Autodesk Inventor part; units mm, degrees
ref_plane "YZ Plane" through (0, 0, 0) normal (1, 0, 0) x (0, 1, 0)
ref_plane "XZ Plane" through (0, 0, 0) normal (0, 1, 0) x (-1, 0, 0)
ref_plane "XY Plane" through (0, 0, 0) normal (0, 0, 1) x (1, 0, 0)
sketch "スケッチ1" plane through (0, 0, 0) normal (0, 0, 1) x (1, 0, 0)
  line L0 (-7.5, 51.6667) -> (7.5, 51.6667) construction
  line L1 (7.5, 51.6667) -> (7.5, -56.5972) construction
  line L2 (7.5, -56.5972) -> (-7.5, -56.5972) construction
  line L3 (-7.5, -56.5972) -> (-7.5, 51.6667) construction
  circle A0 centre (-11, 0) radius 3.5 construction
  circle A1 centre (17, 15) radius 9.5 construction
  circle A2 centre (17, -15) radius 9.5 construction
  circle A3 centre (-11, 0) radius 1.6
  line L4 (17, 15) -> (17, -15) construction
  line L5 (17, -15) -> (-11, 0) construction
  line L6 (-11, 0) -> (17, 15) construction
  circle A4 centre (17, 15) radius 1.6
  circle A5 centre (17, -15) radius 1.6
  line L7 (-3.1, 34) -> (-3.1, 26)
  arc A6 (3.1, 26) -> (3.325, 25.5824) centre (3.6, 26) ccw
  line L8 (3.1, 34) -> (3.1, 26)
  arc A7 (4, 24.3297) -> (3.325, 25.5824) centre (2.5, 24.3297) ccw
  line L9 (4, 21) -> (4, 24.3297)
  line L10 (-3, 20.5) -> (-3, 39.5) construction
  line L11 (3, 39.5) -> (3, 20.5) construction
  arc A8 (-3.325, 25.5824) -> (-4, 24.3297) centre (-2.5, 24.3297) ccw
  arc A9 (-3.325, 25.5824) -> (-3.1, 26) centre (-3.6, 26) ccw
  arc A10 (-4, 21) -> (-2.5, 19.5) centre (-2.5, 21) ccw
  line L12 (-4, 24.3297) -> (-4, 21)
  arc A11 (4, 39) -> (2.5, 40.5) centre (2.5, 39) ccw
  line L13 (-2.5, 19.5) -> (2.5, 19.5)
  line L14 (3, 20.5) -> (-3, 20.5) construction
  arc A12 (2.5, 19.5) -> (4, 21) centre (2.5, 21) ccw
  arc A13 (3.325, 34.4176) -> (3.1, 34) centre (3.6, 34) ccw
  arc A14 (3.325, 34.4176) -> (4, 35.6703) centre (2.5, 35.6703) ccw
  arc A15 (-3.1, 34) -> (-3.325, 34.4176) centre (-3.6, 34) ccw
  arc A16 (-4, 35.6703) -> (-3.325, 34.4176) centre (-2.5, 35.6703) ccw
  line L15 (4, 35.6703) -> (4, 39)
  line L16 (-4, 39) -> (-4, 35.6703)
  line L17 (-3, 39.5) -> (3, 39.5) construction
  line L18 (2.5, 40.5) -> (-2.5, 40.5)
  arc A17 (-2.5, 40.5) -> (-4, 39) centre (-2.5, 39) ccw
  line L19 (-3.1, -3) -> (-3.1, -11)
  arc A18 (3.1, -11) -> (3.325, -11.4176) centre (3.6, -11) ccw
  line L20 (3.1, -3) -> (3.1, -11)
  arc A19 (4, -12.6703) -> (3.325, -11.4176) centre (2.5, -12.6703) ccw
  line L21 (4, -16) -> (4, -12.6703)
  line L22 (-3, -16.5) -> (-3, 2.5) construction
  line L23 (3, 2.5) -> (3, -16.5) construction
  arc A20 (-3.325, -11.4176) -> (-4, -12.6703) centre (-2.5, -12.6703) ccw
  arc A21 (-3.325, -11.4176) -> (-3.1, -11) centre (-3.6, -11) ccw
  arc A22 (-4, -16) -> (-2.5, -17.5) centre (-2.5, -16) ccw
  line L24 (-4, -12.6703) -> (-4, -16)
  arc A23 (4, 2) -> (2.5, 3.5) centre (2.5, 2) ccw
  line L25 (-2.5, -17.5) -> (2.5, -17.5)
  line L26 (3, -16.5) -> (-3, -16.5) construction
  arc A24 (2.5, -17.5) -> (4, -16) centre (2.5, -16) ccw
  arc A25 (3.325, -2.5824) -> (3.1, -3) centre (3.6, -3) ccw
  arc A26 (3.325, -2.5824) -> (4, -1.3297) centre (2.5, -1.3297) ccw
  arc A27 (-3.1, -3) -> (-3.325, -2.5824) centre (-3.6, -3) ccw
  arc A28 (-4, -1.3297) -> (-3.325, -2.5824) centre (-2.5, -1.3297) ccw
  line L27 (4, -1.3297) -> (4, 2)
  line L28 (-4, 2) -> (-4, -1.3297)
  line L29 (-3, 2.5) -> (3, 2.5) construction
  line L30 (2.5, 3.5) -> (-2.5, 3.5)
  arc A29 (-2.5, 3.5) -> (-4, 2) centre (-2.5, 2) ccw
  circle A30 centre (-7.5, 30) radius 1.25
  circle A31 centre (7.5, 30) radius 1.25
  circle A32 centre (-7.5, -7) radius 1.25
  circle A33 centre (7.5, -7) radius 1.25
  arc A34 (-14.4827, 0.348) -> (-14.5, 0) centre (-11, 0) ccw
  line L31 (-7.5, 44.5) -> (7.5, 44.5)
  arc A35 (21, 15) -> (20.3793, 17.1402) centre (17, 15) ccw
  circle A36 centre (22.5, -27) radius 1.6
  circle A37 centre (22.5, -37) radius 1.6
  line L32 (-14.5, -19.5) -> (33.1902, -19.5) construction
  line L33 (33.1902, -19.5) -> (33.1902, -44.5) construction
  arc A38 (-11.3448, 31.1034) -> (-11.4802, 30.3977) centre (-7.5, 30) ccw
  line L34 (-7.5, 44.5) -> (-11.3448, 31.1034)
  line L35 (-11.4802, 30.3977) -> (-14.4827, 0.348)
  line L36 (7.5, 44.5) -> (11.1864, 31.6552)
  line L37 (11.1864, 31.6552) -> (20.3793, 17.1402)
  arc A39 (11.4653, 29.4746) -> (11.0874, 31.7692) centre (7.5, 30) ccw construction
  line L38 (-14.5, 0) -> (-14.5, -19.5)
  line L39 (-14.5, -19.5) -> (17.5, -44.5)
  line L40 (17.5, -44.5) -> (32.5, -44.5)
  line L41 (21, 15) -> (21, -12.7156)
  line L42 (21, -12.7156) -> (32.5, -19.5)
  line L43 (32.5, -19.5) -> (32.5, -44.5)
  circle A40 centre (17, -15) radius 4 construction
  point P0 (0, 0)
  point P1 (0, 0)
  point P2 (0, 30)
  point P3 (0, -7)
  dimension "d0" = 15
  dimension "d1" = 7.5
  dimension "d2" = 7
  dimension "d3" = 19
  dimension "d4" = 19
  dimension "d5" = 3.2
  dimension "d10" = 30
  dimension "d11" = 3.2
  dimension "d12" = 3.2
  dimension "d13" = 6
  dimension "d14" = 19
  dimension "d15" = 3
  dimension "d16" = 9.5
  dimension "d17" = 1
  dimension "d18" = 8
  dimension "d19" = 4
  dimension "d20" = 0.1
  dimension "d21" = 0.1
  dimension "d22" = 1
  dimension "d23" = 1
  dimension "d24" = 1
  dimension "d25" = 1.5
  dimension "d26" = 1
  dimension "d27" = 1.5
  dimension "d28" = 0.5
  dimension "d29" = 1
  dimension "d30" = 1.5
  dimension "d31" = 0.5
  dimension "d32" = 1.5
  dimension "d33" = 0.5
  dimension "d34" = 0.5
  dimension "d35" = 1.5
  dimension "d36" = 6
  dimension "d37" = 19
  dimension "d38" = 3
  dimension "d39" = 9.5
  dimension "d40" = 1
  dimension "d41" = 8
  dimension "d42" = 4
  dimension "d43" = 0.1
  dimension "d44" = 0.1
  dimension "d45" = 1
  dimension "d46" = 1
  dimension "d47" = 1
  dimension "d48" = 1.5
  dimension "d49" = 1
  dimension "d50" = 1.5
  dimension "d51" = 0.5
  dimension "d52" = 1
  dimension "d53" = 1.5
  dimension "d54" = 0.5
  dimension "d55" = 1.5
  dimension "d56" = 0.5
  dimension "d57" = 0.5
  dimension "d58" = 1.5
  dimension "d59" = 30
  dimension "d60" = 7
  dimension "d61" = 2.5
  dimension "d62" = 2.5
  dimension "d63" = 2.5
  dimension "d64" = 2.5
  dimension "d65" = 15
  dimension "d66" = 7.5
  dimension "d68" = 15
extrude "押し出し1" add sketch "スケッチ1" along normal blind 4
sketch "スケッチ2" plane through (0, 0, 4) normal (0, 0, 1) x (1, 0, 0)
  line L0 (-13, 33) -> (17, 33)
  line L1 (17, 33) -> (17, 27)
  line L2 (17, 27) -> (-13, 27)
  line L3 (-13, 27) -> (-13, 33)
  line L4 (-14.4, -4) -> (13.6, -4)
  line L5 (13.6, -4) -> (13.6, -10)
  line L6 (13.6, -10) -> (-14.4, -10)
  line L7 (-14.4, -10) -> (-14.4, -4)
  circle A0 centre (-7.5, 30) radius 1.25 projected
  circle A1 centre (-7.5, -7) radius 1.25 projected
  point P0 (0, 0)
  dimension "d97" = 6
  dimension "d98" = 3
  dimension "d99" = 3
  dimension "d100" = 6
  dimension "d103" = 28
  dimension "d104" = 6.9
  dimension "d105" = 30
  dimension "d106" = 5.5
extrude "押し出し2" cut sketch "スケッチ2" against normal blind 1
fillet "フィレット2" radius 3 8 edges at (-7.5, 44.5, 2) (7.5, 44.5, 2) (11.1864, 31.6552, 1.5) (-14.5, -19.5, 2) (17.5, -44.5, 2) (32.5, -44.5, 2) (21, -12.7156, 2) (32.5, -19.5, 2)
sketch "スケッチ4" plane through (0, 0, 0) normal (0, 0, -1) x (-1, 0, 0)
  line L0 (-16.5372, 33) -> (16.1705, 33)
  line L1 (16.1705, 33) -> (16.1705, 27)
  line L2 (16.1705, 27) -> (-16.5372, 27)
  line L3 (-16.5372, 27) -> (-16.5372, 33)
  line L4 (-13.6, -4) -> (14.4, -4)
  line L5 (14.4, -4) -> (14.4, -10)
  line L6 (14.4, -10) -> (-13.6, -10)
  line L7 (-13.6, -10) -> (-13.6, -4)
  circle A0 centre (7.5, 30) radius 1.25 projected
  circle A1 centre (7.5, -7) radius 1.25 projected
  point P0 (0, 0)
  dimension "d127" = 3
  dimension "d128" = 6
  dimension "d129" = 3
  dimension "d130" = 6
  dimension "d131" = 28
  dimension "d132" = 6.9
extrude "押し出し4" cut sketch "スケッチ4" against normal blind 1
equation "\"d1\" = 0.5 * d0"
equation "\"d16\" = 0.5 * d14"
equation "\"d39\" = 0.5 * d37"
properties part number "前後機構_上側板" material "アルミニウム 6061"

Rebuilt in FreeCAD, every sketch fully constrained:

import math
import FreeCAD as App
import Part
import Sketcher

V = App.Vector
Q = App.Units.Quantity


def edges_at(feature, points):
    """Names of the edges that pass closest to the given points."""
    edges = feature.Shape.Edges
    near = lambda p: min(range(len(edges)), key=lambda i: edges[i].distToShape(Part.Vertex(*p))[0])
    return sorted({f"Edge{near(p) + 1}" for p in points})


def add_polygon(sketch, points):
    """Adds a closed chain of lines whose ends are joined by coincident constraints."""
    first, n = sketch.GeometryCount, len(points)
    for a, b in zip(points, points[1:] + points[:1]):
        sketch.addGeometry(Part.LineSegment(App.Vector(*a, 0), App.Vector(*b, 0)), False)
    for i in range(n):
        sketch.addConstraint(Sketcher.Constraint("Coincident", first + i, 2, first + (i + 1) % n, 1))

doc = App.newDocument("Part")
body = doc.addObject("PartDesign::Body", "Body")

# Sketch on XY plane
sketch1 = body.newObject("Sketcher::SketchObject", "Sketch")
sketch1.AttachmentSupport = (doc.getObject("XY_Plane"), [""])
sketch1.MapMode = "FlatFace"
sketch1.addGeometry(Part.LineSegment(V(-11.4802, 30.3977, 0), V(-14.4827, 0.348, 0)), False)
sketch1.addGeometry(Part.ArcOfCircle(Part.Circle(V(-11.017347, 0.001298, 0), V(0, 0, 1), 3.482653), math.radians(174.28668), math.radians(180.021356)), False)
sketch1.addGeometry(Part.LineSegment(V(-14.5, 0, 0), V(-14.5, -19.5, 0)), False)
sketch1.addGeometry(Part.LineSegment(V(-14.5, -19.5, 0), V(17.5, -44.5, 0)), False)
sketch1.addGeometry(Part.LineSegment(V(17.5, -44.5, 0), V(32.5, -44.5, 0)), False)
sketch1.addGeometry(Part.LineSegment(V(32.5, -44.5, 0), V(32.5, -19.5, 0)), False)
sketch1.addGeometry(Part.LineSegment(V(32.5, -19.5, 0), V(21, -12.7156, 0)), False)
sketch1.addGeometry(Part.LineSegment(V(21, -12.7156, 0), V(21, 15, 0)), False)
sketch1.addGeometry(Part.ArcOfCircle(Part.Circle(V(17, 15, 0), V(0, 0, 1), 4), math.radians(0), math.radians(32.347161)), False)
sketch1.addGeometry(Part.LineSegment(V(20.3793, 17.1402, 0), V(11.1864, 31.6552, 0)), False)
sketch1.addGeometry(Part.LineSegment(V(11.1864, 31.6552, 0), V(7.5, 44.5, 0)), False)
sketch1.addGeometry(Part.LineSegment(V(7.5, 44.5, 0), V(-7.5, 44.5, 0)), False)
sketch1.addGeometry(Part.LineSegment(V(-7.5, 44.5, 0), V(-11.3448, 31.1034, 0)), False)
sketch1.addGeometry(Part.ArcOfCircle(Part.Circle(V(-7.497308, 29.999357, 0), V(0, 0, 1), 4.002763), math.radians(163.989095), math.radians(174.288638)), False)
sketch1.addGeometry(Part.Circle(V(-7.5, -7, 0), V(0, 0, 1), 1.25), False)
sketch1.addGeometry(Part.LineSegment(V(-3.1, -11, 0), V(-3.1, -3, 0)), False)
sketch1.addGeometry(Part.ArcOfCircle(Part.Circle(V(-3.6, -3, 0), V(0, 0, 1), 0.5), math.radians(0), math.radians(56.634101)), False)
sketch1.addGeometry(Part.ArcOfCircle(Part.Circle(V(-2.5, -1.3297, 0), V(0, 0, 1), 1.5), math.radians(180), math.radians(236.632)), False)
sketch1.addGeometry(Part.LineSegment(V(-4, -1.3297, 0), V(-4, 2, 0)), False)
sketch1.addGeometry(Part.ArcOfCircle(Part.Circle(V(-2.5, 2, 0), V(0, 0, 1), 1.5), math.radians(90), math.radians(180)), False)
sketch1.addGeometry(Part.LineSegment(V(-2.5, 3.5, 0), V(2.5, 3.5, 0)), False)
sketch1.addGeometry(Part.ArcOfCircle(Part.Circle(V(2.5, 2, 0), V(0, 0, 1), 1.5), math.radians(0), math.radians(90)), False)
sketch1.addGeometry(Part.LineSegment(V(4, 2, 0), V(4, -1.3297, 0)), False)
sketch1.addGeometry(Part.ArcOfCircle(Part.Circle(V(2.5, -1.3297, 0), V(0, 0, 1), 1.499961), math.radians(-56.632), math.radians(0)), False)
sketch1.addGeometry(Part.ArcOfCircle(Part.Circle(V(3.6, -3, 0), V(0, 0, 1), 0.500015), math.radians(123.365899), math.radians(180)), False)
sketch1.addGeometry(Part.LineSegment(V(3.1, -3, 0), V(3.1, -11, 0)), False)
sketch1.addGeometry(Part.ArcOfCircle(Part.Circle(V(3.6, -11, 0), V(0, 0, 1), 0.5), math.radians(180), math.radians(236.634101)), False)
sketch1.addGeometry(Part.ArcOfCircle(Part.Circle(V(2.5, -12.6703, 0), V(0, 0, 1), 1.5), math.radians(0), math.radians(56.632)), False)
sketch1.addGeometry(Part.LineSegment(V(4, -12.6703, 0), V(4, -16, 0)), False)
sketch1.addGeometry(Part.ArcOfCircle(Part.Circle(V(2.5, -16, 0), V(0, 0, 1), 1.5), math.radians(-90), math.radians(0)), False)
sketch1.addGeometry(Part.LineSegment(V(2.5, -17.5, 0), V(-2.5, -17.5, 0)), False)
sketch1.addGeometry(Part.ArcOfCircle(Part.Circle(V(-2.5, -16, 0), V(0, 0, 1), 1.5), math.radians(180), math.radians(270)), False)
sketch1.addGeometry(Part.LineSegment(V(-4, -16, 0), V(-4, -12.6703, 0)), False)
sketch1.addGeometry(Part.ArcOfCircle(Part.Circle(V(-2.5, -12.6703, 0), V(0, 0, 1), 1.499961), math.radians(123.368), math.radians(180)), False)
sketch1.addGeometry(Part.ArcOfCircle(Part.Circle(V(-3.6, -11, 0), V(0, 0, 1), 0.500015), math.radians(-56.634101), math.radians(0)), False)
sketch1.addGeometry(Part.Circle(V(7.5, -7, 0), V(0, 0, 1), 1.25), False)
sketch1.addGeometry(Part.Circle(V(22.5, -37, 0), V(0, 0, 1), 1.6), False)
sketch1.addGeometry(Part.Circle(V(22.5, -27, 0), V(0, 0, 1), 1.6), False)
sketch1.addGeometry(Part.Circle(V(17, -15, 0), V(0, 0, 1), 1.6), False)
sketch1.addGeometry(Part.Circle(V(-11, 0, 0), V(0, 0, 1), 1.6), False)
sketch1.addGeometry(Part.Circle(V(-7.5, 30, 0), V(0, 0, 1), 1.25), False)
sketch1.addGeometry(Part.LineSegment(V(-3.1, 26, 0), V(-3.1, 34, 0)), False)
sketch1.addGeometry(Part.ArcOfCircle(Part.Circle(V(-3.6, 34, 0), V(0, 0, 1), 0.5), math.radians(0), math.radians(56.634101)), False)
sketch1.addGeometry(Part.ArcOfCircle(Part.Circle(V(-2.5, 35.6703, 0), V(0, 0, 1), 1.5), math.radians(180), math.radians(236.632)), False)
sketch1.addGeometry(Part.LineSegment(V(-4, 35.6703, 0), V(-4, 39, 0)), False)
sketch1.addGeometry(Part.ArcOfCircle(Part.Circle(V(-2.5, 39, 0), V(0, 0, 1), 1.5), math.radians(90), math.radians(180)), False)
sketch1.addGeometry(Part.LineSegment(V(-2.5, 40.5, 0), V(2.5, 40.5, 0)), False)
sketch1.addGeometry(Part.ArcOfCircle(Part.Circle(V(2.5, 39, 0), V(0, 0, 1), 1.5), math.radians(0), math.radians(90)), False)
sketch1.addGeometry(Part.LineSegment(V(4, 39, 0), V(4, 35.6703, 0)), False)
sketch1.addGeometry(Part.ArcOfCircle(Part.Circle(V(2.5, 35.6703, 0), V(0, 0, 1), 1.499961), math.radians(-56.632), math.radians(0)), False)
sketch1.addGeometry(Part.ArcOfCircle(Part.Circle(V(3.6, 34, 0), V(0, 0, 1), 0.500015), math.radians(123.365899), math.radians(180)), False)
sketch1.addGeometry(Part.LineSegment(V(3.1, 34, 0), V(3.1, 26, 0)), False)
sketch1.addGeometry(Part.ArcOfCircle(Part.Circle(V(3.6, 26, 0), V(0, 0, 1), 0.5), math.radians(180), math.radians(236.634101)), False)
sketch1.addGeometry(Part.ArcOfCircle(Part.Circle(V(2.5, 24.3297, 0), V(0, 0, 1), 1.5), math.radians(0), math.radians(56.632)), False)
sketch1.addGeometry(Part.LineSegment(V(4, 24.3297, 0), V(4, 21, 0)), False)
sketch1.addGeometry(Part.ArcOfCircle(Part.Circle(V(2.5, 21, 0), V(0, 0, 1), 1.5), math.radians(-90), math.radians(0)), False)
sketch1.addGeometry(Part.LineSegment(V(2.5, 19.5, 0), V(-2.5, 19.5, 0)), False)
sketch1.addGeometry(Part.ArcOfCircle(Part.Circle(V(-2.5, 21, 0), V(0, 0, 1), 1.5), math.radians(180), math.radians(270)), False)
sketch1.addGeometry(Part.LineSegment(V(-4, 21, 0), V(-4, 24.3297, 0)), False)
sketch1.addGeometry(Part.ArcOfCircle(Part.Circle(V(-2.5, 24.3297, 0), V(0, 0, 1), 1.499961), math.radians(123.368), math.radians(180)), False)
sketch1.addGeometry(Part.ArcOfCircle(Part.Circle(V(-3.6, 26, 0), V(0, 0, 1), 0.500015), math.radians(-56.634101), math.radians(0)), False)
sketch1.addGeometry(Part.Circle(V(7.5, 30, 0), V(0, 0, 1), 1.25), False)
sketch1.addGeometry(Part.Circle(V(17, 15, 0), V(0, 0, 1), 1.6), False)
sketch1.addConstraint(Sketcher.Constraint("Coincident", 0, 2, 1, 1))
sketch1.addConstraint(Sketcher.Constraint("Coincident", 1, 2, 2, 1))
sketch1.addConstraint(Sketcher.Constraint("Coincident", 2, 2, 3, 1))
sketch1.addConstraint(Sketcher.Constraint("Coincident", 3, 2, 4, 1))
sketch1.addConstraint(Sketcher.Constraint("Coincident", 4, 2, 5, 1))
sketch1.addConstraint(Sketcher.Constraint("Coincident", 5, 2, 6, 1))
sketch1.addConstraint(Sketcher.Constraint("Coincident", 6, 2, 7, 1))
sketch1.addConstraint(Sketcher.Constraint("Coincident", 7, 2, 8, 1))
sketch1.addConstraint(Sketcher.Constraint("Coincident", 8, 2, 9, 1))
sketch1.addConstraint(Sketcher.Constraint("Coincident", 9, 2, 10, 1))
sketch1.addConstraint(Sketcher.Constraint("Coincident", 10, 2, 11, 1))
sketch1.addConstraint(Sketcher.Constraint("Coincident", 11, 2, 12, 1))
sketch1.addConstraint(Sketcher.Constraint("Coincident", 12, 2, 13, 1))
sketch1.addConstraint(Sketcher.Constraint("Coincident", 13, 2, 0, 1))
sketch1.addConstraint(Sketcher.Constraint("Coincident", 15, 2, 16, 1))
sketch1.addConstraint(Sketcher.Constraint("Coincident", 16, 2, 17, 2))
sketch1.addConstraint(Sketcher.Constraint("Coincident", 17, 1, 18, 1))
sketch1.addConstraint(Sketcher.Constraint("Coincident", 18, 2, 19, 2))
sketch1.addConstraint(Sketcher.Constraint("Coincident", 19, 1, 20, 1))
sketch1.addConstraint(Sketcher.Constraint("Coincident", 20, 2, 21, 2))
sketch1.addConstraint(Sketcher.Constraint("Coincident", 21, 1, 22, 1))
sketch1.addConstraint(Sketcher.Constraint("Coincident", 22, 2, 23, 2))
sketch1.addConstraint(Sketcher.Constraint("Coincident", 23, 1, 24, 1))
sketch1.addConstraint(Sketcher.Constraint("Coincident", 24, 2, 25, 1))
sketch1.addConstraint(Sketcher.Constraint("Coincident", 25, 2, 26, 1))
sketch1.addConstraint(Sketcher.Constraint("Coincident", 26, 2, 27, 2))
sketch1.addConstraint(Sketcher.Constraint("Coincident", 27, 1, 28, 1))
sketch1.addConstraint(Sketcher.Constraint("Coincident", 28, 2, 29, 2))
sketch1.addConstraint(Sketcher.Constraint("Coincident", 29, 1, 30, 1))
sketch1.addConstraint(Sketcher.Constraint("Coincident", 30, 2, 31, 2))
sketch1.addConstraint(Sketcher.Constraint("Coincident", 31, 1, 32, 1))
sketch1.addConstraint(Sketcher.Constraint("Coincident", 32, 2, 33, 2))
sketch1.addConstraint(Sketcher.Constraint("Coincident", 33, 1, 34, 1))
sketch1.addConstraint(Sketcher.Constraint("Coincident", 34, 2, 15, 1))
sketch1.addConstraint(Sketcher.Constraint("Coincident", 41, 2, 42, 1))
sketch1.addConstraint(Sketcher.Constraint("Coincident", 42, 2, 43, 2))
sketch1.addConstraint(Sketcher.Constraint("Coincident", 43, 1, 44, 1))
sketch1.addConstraint(Sketcher.Constraint("Coincident", 44, 2, 45, 2))
sketch1.addConstraint(Sketcher.Constraint("Coincident", 45, 1, 46, 1))
sketch1.addConstraint(Sketcher.Constraint("Coincident", 46, 2, 47, 2))
sketch1.addConstraint(Sketcher.Constraint("Coincident", 47, 1, 48, 1))
sketch1.addConstraint(Sketcher.Constraint("Coincident", 48, 2, 49, 2))
sketch1.addConstraint(Sketcher.Constraint("Coincident", 49, 1, 50, 1))
sketch1.addConstraint(Sketcher.Constraint("Coincident", 50, 2, 51, 1))
sketch1.addConstraint(Sketcher.Constraint("Coincident", 51, 2, 52, 1))
sketch1.addConstraint(Sketcher.Constraint("Coincident", 52, 2, 53, 2))
sketch1.addConstraint(Sketcher.Constraint("Coincident", 53, 1, 54, 1))
sketch1.addConstraint(Sketcher.Constraint("Coincident", 54, 2, 55, 2))
sketch1.addConstraint(Sketcher.Constraint("Coincident", 55, 1, 56, 1))
sketch1.addConstraint(Sketcher.Constraint("Coincident", 56, 2, 57, 2))
sketch1.addConstraint(Sketcher.Constraint("Coincident", 57, 1, 58, 1))
sketch1.addConstraint(Sketcher.Constraint("Coincident", 58, 2, 59, 2))
sketch1.addConstraint(Sketcher.Constraint("Coincident", 59, 1, 60, 1))
sketch1.addConstraint(Sketcher.Constraint("Coincident", 60, 2, 41, 1))
sketch1.addConstraint(Sketcher.Constraint("Vertical", 2))
sketch1.addConstraint(Sketcher.Constraint("Horizontal", 4))
sketch1.addConstraint(Sketcher.Constraint("Vertical", 5))
sketch1.addConstraint(Sketcher.Constraint("Vertical", 7))
sketch1.addConstraint(Sketcher.Constraint("Horizontal", 11))
sketch1.addConstraint(Sketcher.Constraint("Vertical", 15))
sketch1.addConstraint(Sketcher.Constraint("Vertical", 18))
sketch1.addConstraint(Sketcher.Constraint("Horizontal", 20))
sketch1.addConstraint(Sketcher.Constraint("Vertical", 22))
sketch1.addConstraint(Sketcher.Constraint("Vertical", 25))
sketch1.addConstraint(Sketcher.Constraint("Vertical", 28))
sketch1.addConstraint(Sketcher.Constraint("Horizontal", 30))
sketch1.addConstraint(Sketcher.Constraint("Vertical", 32))
sketch1.addConstraint(Sketcher.Constraint("Vertical", 41))
sketch1.addConstraint(Sketcher.Constraint("Vertical", 44))
sketch1.addConstraint(Sketcher.Constraint("Horizontal", 46))
sketch1.addConstraint(Sketcher.Constraint("Vertical", 48))
sketch1.addConstraint(Sketcher.Constraint("Vertical", 51))
sketch1.addConstraint(Sketcher.Constraint("Vertical", 54))
sketch1.addConstraint(Sketcher.Constraint("Horizontal", 56))
sketch1.addConstraint(Sketcher.Constraint("Vertical", 58))
sketch1.addConstraint(Sketcher.Constraint("Coincident", 62, 3, 8, 3))
sketch1.addConstraint(Sketcher.Constraint("PointOnObject", 39, 3, -1))
sketch1.addConstraint(Sketcher.Constraint("PointOnObject", 1, 2, -1))
sketch1.addConstraint(Sketcher.Constraint("Radius", 8, Q("4 mm")))
sketch1.addConstraint(Sketcher.Constraint("Diameter", 14, Q("2.5 mm")))
sketch1.addConstraint(Sketcher.Constraint("Diameter", 35, Q("2.5 mm")))
sketch1.addConstraint(Sketcher.Constraint("Diameter", 36, Q("3.2 mm")))
sketch1.addConstraint(Sketcher.Constraint("Diameter", 37, Q("3.2 mm")))
sketch1.addConstraint(Sketcher.Constraint("Diameter", 38, Q("3.2 mm")))
sketch1.addConstraint(Sketcher.Constraint("Diameter", 39, Q("3.2 mm")))
sketch1.addConstraint(Sketcher.Constraint("Diameter", 40, Q("2.5 mm")))
sketch1.addConstraint(Sketcher.Constraint("Diameter", 61, Q("2.5 mm")))
sketch1.addConstraint(Sketcher.Constraint("Diameter", 62, Q("3.2 mm")))
sketch1.addConstraint(Sketcher.Constraint("Radius", 16, Q("0.5 mm")))
sketch1.addConstraint(Sketcher.Constraint("Radius", 17, Q("1.5 mm")))
sketch1.addConstraint(Sketcher.Constraint("Radius", 19, Q("1.5 mm")))
sketch1.addConstraint(Sketcher.Constraint("Radius", 21, Q("1.5 mm")))
sketch1.addConstraint(Sketcher.Constraint("Radius", 23, Q("1.5 mm")))
sketch1.addConstraint(Sketcher.Constraint("Radius", 24, Q("0.5 mm")))
sketch1.addConstraint(Sketcher.Constraint("Radius", 26, Q("0.5 mm")))
sketch1.addConstraint(Sketcher.Constraint("Radius", 27, Q("1.5 mm")))
sketch1.addConstraint(Sketcher.Constraint("Radius", 29, Q("1.5 mm")))
sketch1.addConstraint(Sketcher.Constraint("Radius", 31, Q("1.5 mm")))
sketch1.addConstraint(Sketcher.Constraint("Radius", 33, Q("1.5 mm")))
sketch1.addConstraint(Sketcher.Constraint("Radius", 34, Q("0.5 mm")))
sketch1.addConstraint(Sketcher.Constraint("Radius", 42, Q("0.5 mm")))
sketch1.addConstraint(Sketcher.Constraint("Radius", 43, Q("1.5 mm")))
sketch1.addConstraint(Sketcher.Constraint("Radius", 45, Q("1.5 mm")))
sketch1.addConstraint(Sketcher.Constraint("Radius", 47, Q("1.5 mm")))
sketch1.addConstraint(Sketcher.Constraint("Radius", 49, Q("1.5 mm")))
sketch1.addConstraint(Sketcher.Constraint("Radius", 50, Q("0.5 mm")))
sketch1.addConstraint(Sketcher.Constraint("Radius", 52, Q("0.5 mm")))
sketch1.addConstraint(Sketcher.Constraint("Radius", 53, Q("1.5 mm")))
sketch1.addConstraint(Sketcher.Constraint("Radius", 55, Q("1.5 mm")))
sketch1.addConstraint(Sketcher.Constraint("Radius", 57, Q("1.5 mm")))
sketch1.addConstraint(Sketcher.Constraint("Radius", 59, Q("1.5 mm")))
sketch1.addConstraint(Sketcher.Constraint("Radius", 60, Q("0.5 mm")))
sketch1.addConstraint(Sketcher.Constraint("DistanceX", 4, 1, 4, 2, Q("15 mm")))
sketch1.addConstraint(Sketcher.Constraint("DistanceX", 11, 2, 11, 1, Q("15 mm")))
sketch1.addConstraint(Sketcher.Constraint("DistanceY", 15, 1, 15, 2, Q("8 mm")))
sketch1.addConstraint(Sketcher.Constraint("DistanceY", 25, 2, 25, 1, Q("8 mm")))
sketch1.addConstraint(Sketcher.Constraint("DistanceY", 41, 1, 41, 2, Q("8 mm")))
sketch1.addConstraint(Sketcher.Constraint("DistanceY", 51, 2, 51, 1, Q("8 mm")))
sketch1.addConstraint(Sketcher.Constraint("DistanceY", -1, 1, 8, 3, Q("15 mm")))
sketch1.addConstraint(Sketcher.Constraint("DistanceY", 14, 3, -1, 1, Q("7 mm")))
sketch1.addConstraint(Sketcher.Constraint("DistanceY", 16, 3, -1, 1, Q("3 mm")))
sketch1.addConstraint(Sketcher.Constraint("DistanceY", 24, 3, -1, 1, Q("3 mm")))
sketch1.addConstraint(Sketcher.Constraint("DistanceY", 35, 3, -1, 1, Q("7 mm")))
sketch1.addConstraint(Sketcher.Constraint("DistanceY", 38, 3, -1, 1, Q("15 mm")))
sketch1.addConstraint(Sketcher.Constraint("DistanceY", -1, 1, 40, 3, Q("30 mm")))
sketch1.addConstraint(Sketcher.Constraint("DistanceY", -1, 1, 61, 3, Q("30 mm")))
sketch1.addConstraint(Sketcher.Constraint("DistanceY", -1, 1, 7, 2, Q("15 mm")))
sketch1.addConstraint(Sketcher.Constraint("DistanceY", 15, 2, -1, 1, Q("3 mm")))
sketch1.addConstraint(Sketcher.Constraint("DistanceX", 17, 1, -1, 1, Q("4 mm")))
sketch1.addConstraint(Sketcher.Constraint("DistanceX", -1, 1, 21, 1, Q("4 mm")))
sketch1.addConstraint(Sketcher.Constraint("DistanceY", 24, 2, -1, 1, Q("3 mm")))
sketch1.addConstraint(Sketcher.Constraint("DistanceX", -1, 1, 27, 1, Q("4 mm")))
sketch1.addConstraint(Sketcher.Constraint("DistanceX", 31, 1, -1, 1, Q("4 mm")))
sketch1.addConstraint(Sketcher.Constraint("DistanceX", 43, 1, -1, 1, Q("4 mm")))
sketch1.addConstraint(Sketcher.Constraint("DistanceX", -1, 1, 47, 1, Q("4 mm")))
sketch1.addConstraint(Sketcher.Constraint("DistanceX", -1, 1, 53, 1, Q("4 mm")))
sketch1.addConstraint(Sketcher.Constraint("DistanceX", 57, 1, -1, 1, Q("4 mm")))
sketch1.addConstraint(Sketcher.Constraint("DistanceX", 14, 3, -1, 1, Q("7.5 mm")))
sketch1.addConstraint(Sketcher.Constraint("DistanceX", -1, 1, 35, 3, Q("7.5 mm")))
sketch1.addConstraint(Sketcher.Constraint("DistanceX", 40, 3, -1, 1, Q("7.5 mm")))
sketch1.addConstraint(Sketcher.Constraint("DistanceX", -1, 1, 61, 3, Q("7.5 mm")))
sketch1.addConstraint(Sketcher.Constraint("DistanceX", -1, 1, 10, 2, Q("7.5 mm")))
sketch1.addConstraint(Sketcher.Constraint("DistanceX", 19, 1, -1, 1, Q("2.5 mm")))
sketch1.addConstraint(Sketcher.Constraint("DistanceX", -1, 1, 20, 2, Q("2.5 mm")))
sketch1.addConstraint(Sketcher.Constraint("DistanceX", -1, 1, 29, 1, Q("2.5 mm")))
sketch1.addConstraint(Sketcher.Constraint("DistanceX", 30, 2, -1, 1, Q("2.5 mm")))
sketch1.addConstraint(Sketcher.Constraint("DistanceX", 45, 1, -1, 1, Q("2.5 mm")))
sketch1.addConstraint(Sketcher.Constraint("DistanceX", -1, 1, 46, 2, Q("2.5 mm")))
sketch1.addConstraint(Sketcher.Constraint("DistanceX", -1, 1, 55, 1, Q("2.5 mm")))
sketch1.addConstraint(Sketcher.Constraint("DistanceX", 56, 2, -1, 1, Q("2.5 mm")))
sketch1.addConstraint(Sketcher.Constraint("DistanceY", 5, 1, 5, 2, Q("25 mm")))
sketch1.addConstraint(Sketcher.Constraint("DistanceY", 2, 2, 2, 1, Q("19.5 mm")))
sketch1.addConstraint(Sketcher.Constraint("DistanceX", -1, 1, 8, 3, Q("17 mm")))
sketch1.addConstraint(Sketcher.Constraint("DistanceY", -1, 1, 19, 3, Q("2 mm")))
sketch1.addConstraint(Sketcher.Constraint("DistanceY", 26, 3, -1, 1, Q("11 mm")))
sketch1.addConstraint(Sketcher.Constraint("DistanceY", 29, 3, -1, 1, Q("16 mm")))
sketch1.addConstraint(Sketcher.Constraint("DistanceY", 34, 3, -1, 1, Q("11 mm")))
sketch1.addConstraint(Sketcher.Constraint("DistanceY", 36, 3, -1, 1, Q("37 mm")))
sketch1.addConstraint(Sketcher.Constraint("DistanceY", 37, 3, -1, 1, Q("27 mm")))
sketch1.addConstraint(Sketcher.Constraint("DistanceX", -1, 1, 38, 3, Q("17 mm")))
sketch1.addConstraint(Sketcher.Constraint("DistanceX", 39, 3, -1, 1, Q("11 mm")))
sketch1.addConstraint(Sketcher.Constraint("DistanceY", -1, 1, 42, 3, Q("34 mm")))
sketch1.addConstraint(Sketcher.Constraint("DistanceY", -1, 1, 45, 3, Q("39 mm")))
sketch1.addConstraint(Sketcher.Constraint("DistanceY", -1, 1, 50, 3, Q("34 mm")))
sketch1.addConstraint(Sketcher.Constraint("DistanceY", -1, 1, 52, 3, Q("26 mm")))
sketch1.addConstraint(Sketcher.Constraint("DistanceY", -1, 1, 55, 3, Q("21 mm")))
sketch1.addConstraint(Sketcher.Constraint("DistanceY", -1, 1, 60, 3, Q("26 mm")))
sketch1.addConstraint(Sketcher.Constraint("DistanceY", -1, 1, 18, 2, Q("2 mm")))
sketch1.addConstraint(Sketcher.Constraint("DistanceY", -1, 1, 21, 1, Q("2 mm")))
sketch1.addConstraint(Sketcher.Constraint("DistanceY", 28, 2, -1, 1, Q("16 mm")))
sketch1.addConstraint(Sketcher.Constraint("DistanceY", 31, 1, -1, 1, Q("16 mm")))
sketch1.addConstraint(Sketcher.Constraint("DistanceY", -1, 1, 41, 2, Q("34 mm")))
sketch1.addConstraint(Sketcher.Constraint("DistanceY", -1, 1, 44, 2, Q("39 mm")))
sketch1.addConstraint(Sketcher.Constraint("DistanceY", -1, 1, 47, 1, Q("39 mm")))
sketch1.addConstraint(Sketcher.Constraint("DistanceY", -1, 1, 50, 2, Q("34 mm")))
sketch1.addConstraint(Sketcher.Constraint("DistanceY", -1, 1, 54, 2, Q("21 mm")))
sketch1.addConstraint(Sketcher.Constraint("DistanceY", -1, 1, 57, 1, Q("21 mm")))
sketch1.addConstraint(Sketcher.Constraint("DistanceX", 16, 3, -1, 1, Q("3.6 mm")))
sketch1.addConstraint(Sketcher.Constraint("DistanceX", -1, 1, 24, 3, Q("3.6 mm")))
sketch1.addConstraint(Sketcher.Constraint("DistanceX", -1, 1, 36, 3, Q("22.5 mm")))
sketch1.addConstraint(Sketcher.Constraint("DistanceX", -1, 1, 37, 3, Q("22.5 mm")))
sketch1.addConstraint(Sketcher.Constraint("DistanceX", 42, 3, -1, 1, Q("3.6 mm")))
sketch1.addConstraint(Sketcher.Constraint("DistanceX", -1, 1, 50, 3, Q("3.6 mm")))
sketch1.addConstraint(Sketcher.Constraint("DistanceX", 1, 2, -1, 1, Q("14.5 mm")))
sketch1.addConstraint(Sketcher.Constraint("DistanceX", -1, 1, 3, 2, Q("17.5 mm")))
sketch1.addConstraint(Sketcher.Constraint("DistanceY", 3, 2, -1, 1, Q("44.5 mm")))
sketch1.addConstraint(Sketcher.Constraint("DistanceY", -1, 1, 10, 2, Q("44.5 mm")))
sketch1.addConstraint(Sketcher.Constraint("Radius", 1, Q("3.4827 mm")))
sketch1.addConstraint(Sketcher.Constraint("Radius", 13, Q("4.0028 mm")))
sketch1.addConstraint(Sketcher.Constraint("Distance", 6, Q("13.352 mm")))
sketch1.addConstraint(Sketcher.Constraint("DistanceY", 18, 1, 18, 2, Q("3.3297 mm")))
sketch1.addConstraint(Sketcher.Constraint("DistanceY", 22, 2, 22, 1, Q("3.3297 mm")))
sketch1.addConstraint(Sketcher.Constraint("DistanceY", 28, 2, 28, 1, Q("3.3297 mm")))
sketch1.addConstraint(Sketcher.Constraint("DistanceY", 32, 1, 32, 2, Q("3.3297 mm")))
sketch1.addConstraint(Sketcher.Constraint("DistanceY", 44, 1, 44, 2, Q("3.3297 mm")))
sketch1.addConstraint(Sketcher.Constraint("DistanceY", 48, 2, 48, 1, Q("3.3297 mm")))
sketch1.addConstraint(Sketcher.Constraint("DistanceY", 54, 2, 54, 1, Q("3.3297 mm")))
sketch1.addConstraint(Sketcher.Constraint("DistanceY", 58, 1, 58, 2, Q("3.3297 mm")))
sketch1.addConstraint(Sketcher.Constraint("DistanceY", -1, 1, 0, 2, Q("0.348 mm")))
sketch1.addConstraint(Sketcher.Constraint("DistanceX", 16, 2, -1, 1, Q("3.325 mm")))
sketch1.addConstraint(Sketcher.Constraint("DistanceX", -1, 1, 23, 1, Q("3.325 mm")))
sketch1.addConstraint(Sketcher.Constraint("DistanceX", -1, 1, 26, 2, Q("3.325 mm")))
sketch1.addConstraint(Sketcher.Constraint("DistanceX", 33, 1, -1, 1, Q("3.325 mm")))
sketch1.addConstraint(Sketcher.Constraint("DistanceX", 42, 2, -1, 1, Q("3.325 mm")))
sketch1.addConstraint(Sketcher.Constraint("DistanceX", -1, 1, 49, 1, Q("3.325 mm")))
sketch1.addConstraint(Sketcher.Constraint("DistanceX", -1, 1, 52, 2, Q("3.325 mm")))
sketch1.addConstraint(Sketcher.Constraint("DistanceX", 59, 1, -1, 1, Q("3.325 mm")))
sketch1.addConstraint(Sketcher.Constraint("Distance", 0, Q("30.1993 mm")))
sketch1.addConstraint(Sketcher.Constraint("Distance", 9, Q("17.1812 mm")))
sketch1.addConstraint(Sketcher.Constraint("Distance", 10, Q("13.3633 mm")))
sketch1.addConstraint(Sketcher.Constraint("Distance", 12, Q("13.9374 mm")))
sketch1.addConstraint(Sketcher.Constraint("DistanceY", -1, 1, 1, 3, Q("0.0013 mm")))
sketch1.addConstraint(Sketcher.Constraint("DistanceX", 13, 3, -1, 1, Q("7.4973 mm")))
sketch1.addConstraint(Sketcher.Constraint("DistanceY", -1, 1, 13, 3, Q("29.9994 mm")))
sketch1.addConstraint(Sketcher.Constraint("DistanceX", -1, 1, 8, 2, Q("20.3793 mm")))
pad1 = body.newObject("PartDesign::Pad", "Pad")
pad1.Profile = sketch1
pad1.Length = 4

# Sketch on XY plane
sketch2 = body.newObject("Sketcher::SketchObject", "Sketch001")
sketch2.AttachmentSupport = (doc.getObject("XY_Plane"), [""])
sketch2.MapMode = "FlatFace"
sketch2.AttachmentOffset = App.Placement(V(0, 0, 4), App.Rotation())
add_polygon(sketch2, [(17, 33), (-13, 33), (-13, 27), (17, 27)])  # lines 0-3
sketch2.addGeometry(Part.Circle(V(-7.5, 30, 0), V(0, 0, 1), 1.2), False)  # 4
add_polygon(sketch2, [(13.6, -4), (-14.4, -4), (-14.4, -10), (13.6, -10)])  # lines 5-8
sketch2.addGeometry(Part.Circle(V(-7.5, -7, 0), V(0, 0, 1), 1.2), False)  # 9
sketch2.addConstraint(Sketcher.Constraint("Horizontal", 0))
sketch2.addConstraint(Sketcher.Constraint("Vertical", 1))
sketch2.addConstraint(Sketcher.Constraint("Horizontal", 2))
sketch2.addConstraint(Sketcher.Constraint("Vertical", 3))
sketch2.addConstraint(Sketcher.Constraint("Horizontal", 5))
sketch2.addConstraint(Sketcher.Constraint("Vertical", 6))
sketch2.addConstraint(Sketcher.Constraint("Horizontal", 7))
sketch2.addConstraint(Sketcher.Constraint("Vertical", 8))
sketch2.addConstraint(Sketcher.Constraint("Equal", 4, 9))
sketch2.addConstraint(Sketcher.Constraint("Vertical", 4, 3, 9, 3))
sketch2.addConstraint(Sketcher.Constraint("Equal", 3, 6))
sketch2.addConstraint(Sketcher.Constraint("DistanceX", 0, 2, 0, 1, Q("30 mm")))
sketch2.addConstraint(Sketcher.Constraint("DistanceX", 5, 2, 5, 1, Q("28 mm")))
sketch2.addConstraint(Sketcher.Constraint("DistanceY", 1, 2, 1, 1, Q("6 mm")))
sketch2.addConstraint(Sketcher.Constraint("DistanceY", -1, 1, 4, 3, Q("30 mm")))
sketch2.addConstraint(Sketcher.Constraint("DistanceY", 4, 3, 0, 2, Q("3 mm")))
sketch2.addConstraint(Sketcher.Constraint("DistanceY", 9, 3, 5, 2, Q("3 mm")))
sketch2.addConstraint(Sketcher.Constraint("Diameter", 4, Q("2.5 mm")))
sketch2.addConstraint(Sketcher.Constraint("DistanceX", 0, 2, 4, 3, Q("5.5 mm")))
sketch2.addConstraint(Sketcher.Constraint("DistanceX", 5, 2, 9, 3, Q("6.9 mm")))
sketch2.addConstraint(Sketcher.Constraint("DistanceY", 9, 3, -1, 1, Q("7 mm")))
sketch2.addConstraint(Sketcher.Constraint("DistanceX", 0, 2, -1, 1, Q("13 mm")))
pocket1 = body.newObject("PartDesign::Pocket", "Pocket")
pocket1.Profile = sketch2
pocket1.Length = 1
doc.recompute()

fillet = body.newObject("PartDesign::Fillet", "Fillet")
fillet.Base = (pocket1, edges_at(pocket1, [
    (-7.5, 44.5, 2),
    (7.5, 44.5, 2),
    (11.186, 31.655, 1.5),
    (-14.5, -19.5, 2),
    (17.5, -44.5, 2),
    (32.5, -44.5, 2),
    (21, -12.716, 2),
    (32.5, -19.5, 2),
]))
fillet.Radius = 3

# Sketch on XY plane
sketch3 = body.newObject("Sketcher::SketchObject", "Sketch002")
sketch3.AttachmentSupport = (doc.getObject("XY_Plane"), [""])
sketch3.MapMode = "FlatFace"
add_polygon(sketch3, [(-16.2, 33), (16.5, 33), (16.5, 27), (-16.2, 27)])  # lines 0-3
sketch3.addGeometry(Part.Circle(V(-7.5, 30, 0), V(0, 0, 1), 1.2), False)  # 4
add_polygon(sketch3, [(-14.4, -4), (13.6, -4), (13.6, -10), (-14.4, -10)])  # lines 5-8
sketch3.addGeometry(Part.Circle(V(-7.5, -7, 0), V(0, 0, 1), 1.2), False)  # 9
sketch3.addConstraint(Sketcher.Constraint("Horizontal", 0))
sketch3.addConstraint(Sketcher.Constraint("Vertical", 1))
sketch3.addConstraint(Sketcher.Constraint("Horizontal", 2))
sketch3.addConstraint(Sketcher.Constraint("Vertical", 3))
sketch3.addConstraint(Sketcher.Constraint("Horizontal", 5))
sketch3.addConstraint(Sketcher.Constraint("Vertical", 6))
sketch3.addConstraint(Sketcher.Constraint("Horizontal", 7))
sketch3.addConstraint(Sketcher.Constraint("Vertical", 8))
sketch3.addConstraint(Sketcher.Constraint("Equal", 4, 9))
sketch3.addConstraint(Sketcher.Constraint("Vertical", 4, 3, 9, 3))
sketch3.addConstraint(Sketcher.Constraint("Equal", 3, 6))
sketch3.addConstraint(Sketcher.Constraint("DistanceX", 5, 1, 5, 2, Q("28 mm")))
sketch3.addConstraint(Sketcher.Constraint("DistanceY", 1, 2, 1, 1, Q("6 mm")))
sketch3.addConstraint(Sketcher.Constraint("DistanceY", 4, 3, 0, 2, Q("3 mm")))
sketch3.addConstraint(Sketcher.Constraint("DistanceY", 9, 3, 5, 2, Q("3 mm")))
sketch3.addConstraint(Sketcher.Constraint("Diameter", 4, Q("2.5 mm")))
sketch3.addConstraint(Sketcher.Constraint("DistanceX", 7, 2, 9, 3, Q("6.9 mm")))
sketch3.addConstraint(Sketcher.Constraint("DistanceY", -1, 1, 4, 3, Q("30 mm")))
sketch3.addConstraint(Sketcher.Constraint("DistanceY", 9, 3, -1, 1, Q("7 mm")))
sketch3.addConstraint(Sketcher.Constraint("DistanceX", 4, 3, -1, 1, Q("7.5 mm")))
sketch3.addConstraint(Sketcher.Constraint("DistanceX", 0, 1, 0, 2, Q("32.7077 mm")))
sketch3.addConstraint(Sketcher.Constraint("DistanceX", -1, 1, 0, 2, Q("16.5372 mm")))
pocket2 = body.newObject("PartDesign::Pocket", "Pocket001")
pocket2.Profile = sketch3
pocket2.Length = 1
pocket2.Reversed = True

doc.recompute()
